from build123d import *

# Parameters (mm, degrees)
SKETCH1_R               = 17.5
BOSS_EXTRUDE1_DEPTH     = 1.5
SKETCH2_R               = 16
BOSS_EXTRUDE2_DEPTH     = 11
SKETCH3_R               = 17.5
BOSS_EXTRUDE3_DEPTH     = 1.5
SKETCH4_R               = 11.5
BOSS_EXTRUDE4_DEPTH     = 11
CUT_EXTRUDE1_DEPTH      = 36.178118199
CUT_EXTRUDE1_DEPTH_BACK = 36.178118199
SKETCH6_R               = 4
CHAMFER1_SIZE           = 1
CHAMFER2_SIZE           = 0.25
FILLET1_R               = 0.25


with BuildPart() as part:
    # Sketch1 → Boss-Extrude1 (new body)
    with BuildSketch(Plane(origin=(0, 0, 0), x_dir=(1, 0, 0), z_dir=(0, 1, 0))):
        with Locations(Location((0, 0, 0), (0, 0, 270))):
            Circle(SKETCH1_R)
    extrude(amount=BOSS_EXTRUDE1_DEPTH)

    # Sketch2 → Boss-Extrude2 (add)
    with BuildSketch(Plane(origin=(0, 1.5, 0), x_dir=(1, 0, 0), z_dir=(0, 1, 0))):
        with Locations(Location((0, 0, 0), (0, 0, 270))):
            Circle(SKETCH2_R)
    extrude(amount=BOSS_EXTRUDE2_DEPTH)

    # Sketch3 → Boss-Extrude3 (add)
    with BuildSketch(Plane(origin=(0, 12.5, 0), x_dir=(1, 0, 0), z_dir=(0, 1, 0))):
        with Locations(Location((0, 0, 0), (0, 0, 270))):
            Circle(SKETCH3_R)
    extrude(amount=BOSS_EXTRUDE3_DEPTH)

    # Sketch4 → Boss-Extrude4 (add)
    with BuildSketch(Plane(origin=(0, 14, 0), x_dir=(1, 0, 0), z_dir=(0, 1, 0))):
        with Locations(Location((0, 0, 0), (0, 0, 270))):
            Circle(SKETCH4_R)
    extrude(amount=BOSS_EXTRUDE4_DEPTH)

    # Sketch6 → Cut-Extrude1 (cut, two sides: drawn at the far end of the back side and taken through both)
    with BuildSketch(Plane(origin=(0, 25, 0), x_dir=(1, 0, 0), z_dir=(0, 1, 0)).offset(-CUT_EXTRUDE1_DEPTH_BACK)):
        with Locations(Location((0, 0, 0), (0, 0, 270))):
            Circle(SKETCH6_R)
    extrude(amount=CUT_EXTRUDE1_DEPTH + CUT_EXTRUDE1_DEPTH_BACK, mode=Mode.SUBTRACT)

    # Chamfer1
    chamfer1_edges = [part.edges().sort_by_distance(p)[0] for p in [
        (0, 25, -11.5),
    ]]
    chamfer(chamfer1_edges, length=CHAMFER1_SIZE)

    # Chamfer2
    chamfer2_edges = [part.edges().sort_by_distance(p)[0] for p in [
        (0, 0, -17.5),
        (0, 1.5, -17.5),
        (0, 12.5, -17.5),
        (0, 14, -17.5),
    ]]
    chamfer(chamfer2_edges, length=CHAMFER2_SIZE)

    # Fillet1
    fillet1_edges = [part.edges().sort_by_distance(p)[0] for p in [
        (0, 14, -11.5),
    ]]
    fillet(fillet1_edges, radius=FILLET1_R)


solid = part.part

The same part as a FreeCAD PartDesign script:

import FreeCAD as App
import Part
import Sketcher
Q = App.Units.Quantity


def edges_at(feature, points):
    """Names of the edges that pass closest to the given points."""
    edges = feature.Shape.Edges
    near = lambda p: min(range(len(edges)), key=lambda i: edges[i].distToShape(Part.Vertex(*p))[0])
    return sorted({f"Edge{near(p) + 1}" for p in points})

doc = App.newDocument("Part")
body = doc.addObject("PartDesign::Body", "Body")

sketch1 = body.newObject("Sketcher::SketchObject", "Sketch")
sketch1.AttachmentSupport = (doc.getObject("XZ_Plane"), [""])
sketch1.MapMode = "FlatFace"
sketch1.addGeometry(Part.Circle(App.Vector(0, 0, 0), App.Vector(0, 0, 1), 18), False)
sketch1.addConstraint([
    Sketcher.Constraint("Coincident", 0, 3, -1, 1),
    Sketcher.Constraint("Diameter", 0, Q("35 mm")),
])
pad1 = body.newObject("PartDesign::Pad", "Pad")
pad1.Profile = sketch1
pad1.Length = 1.5
pad1.Reversed = True

sketch2 = body.newObject("Sketcher::SketchObject", "Sketch001")
sketch2.AttachmentSupport = (doc.getObject("XZ_Plane"), [""])
sketch2.MapMode = "FlatFace"
sketch2.AttachmentOffset = App.Placement(App.Vector(0, 0, -1.5), App.Rotation())
sketch2.addGeometry(Part.Circle(App.Vector(0, 0, 0), App.Vector(0, 0, 1), 16), False)
sketch2.addConstraint([
    Sketcher.Constraint("Coincident", 0, 3, -1, 1),
    Sketcher.Constraint("Diameter", 0, Q("32 mm")),
])
pad2 = body.newObject("PartDesign::Pad", "Pad001")
pad2.Profile = sketch2
pad2.Length = 11
pad2.Reversed = True

sketch3 = body.newObject("Sketcher::SketchObject", "Sketch002")
sketch3.AttachmentSupport = (doc.getObject("XZ_Plane"), [""])
sketch3.MapMode = "FlatFace"
sketch3.AttachmentOffset = App.Placement(App.Vector(0, 0, -12.5), App.Rotation())
sketch3.addGeometry(Part.Circle(App.Vector(0, 0, 0), App.Vector(0, 0, 1), 18), False)
sketch3.addConstraint([
    Sketcher.Constraint("Coincident", 0, 3, -1, 1),
    Sketcher.Constraint("Diameter", 0, Q("35 mm")),
])
pad3 = body.newObject("PartDesign::Pad", "Pad002")
pad3.Profile = sketch3
pad3.Length = 1.5
pad3.Reversed = True

sketch4 = body.newObject("Sketcher::SketchObject", "Sketch003")
sketch4.AttachmentSupport = (doc.getObject("XZ_Plane"), [""])
sketch4.MapMode = "FlatFace"
sketch4.AttachmentOffset = App.Placement(App.Vector(0, 0, -14), App.Rotation())
sketch4.addGeometry(Part.Circle(App.Vector(0, 0, 0), App.Vector(0, 0, 1), 12), False)
sketch4.addConstraint([
    Sketcher.Constraint("Coincident", 0, 3, -1, 1),
    Sketcher.Constraint("Diameter", 0, Q("23 mm")),
])
pad4 = body.newObject("PartDesign::Pad", "Pad003")
pad4.Profile = sketch4
pad4.Length = 11
pad4.Reversed = True

sketch5 = body.newObject("Sketcher::SketchObject", "Sketch004")
sketch5.AttachmentSupport = (doc.getObject("XZ_Plane"), [""])
sketch5.MapMode = "FlatFace"
sketch5.AttachmentOffset = App.Placement(App.Vector(0, 0, -25), App.Rotation())
sketch5.addGeometry(Part.Circle(App.Vector(0, 0, 0), App.Vector(0, 0, 1), 4), False)
sketch5.addConstraint([
    Sketcher.Constraint("Coincident", 0, 3, -1, 1),
    Sketcher.Constraint("Diameter", 0, Q("8 mm")),
])
pocket1 = body.newObject("PartDesign::Pocket", "Pocket")
pocket1.Profile = sketch5
pocket1.Type = "ThroughAll"
pocket1.Midplane = True
doc.recompute()

chamfer = body.newObject("PartDesign::Chamfer", "Chamfer")
chamfer.Base = (pocket1, edges_at(pocket1, [(0, 25, -11.5)]))
chamfer.Size = 1
doc.recompute()

chamfer2 = body.newObject("PartDesign::Chamfer", "Chamfer001")
chamfer2.Base = (chamfer, edges_at(chamfer, [
    (0, 0, -17.5),
    (0, 1.5, -17.5),
    (0, 12.5, -17.5),
    (0, 14, -17.5),
]))
chamfer2.Size = 0.25
doc.recompute()

fillet = body.newObject("PartDesign::Fillet", "Fillet")
fillet.Base = (chamfer2, edges_at(chamfer2, [(0, 14, -11.5)]))
fillet.Radius = 0.25

doc.recompute()
